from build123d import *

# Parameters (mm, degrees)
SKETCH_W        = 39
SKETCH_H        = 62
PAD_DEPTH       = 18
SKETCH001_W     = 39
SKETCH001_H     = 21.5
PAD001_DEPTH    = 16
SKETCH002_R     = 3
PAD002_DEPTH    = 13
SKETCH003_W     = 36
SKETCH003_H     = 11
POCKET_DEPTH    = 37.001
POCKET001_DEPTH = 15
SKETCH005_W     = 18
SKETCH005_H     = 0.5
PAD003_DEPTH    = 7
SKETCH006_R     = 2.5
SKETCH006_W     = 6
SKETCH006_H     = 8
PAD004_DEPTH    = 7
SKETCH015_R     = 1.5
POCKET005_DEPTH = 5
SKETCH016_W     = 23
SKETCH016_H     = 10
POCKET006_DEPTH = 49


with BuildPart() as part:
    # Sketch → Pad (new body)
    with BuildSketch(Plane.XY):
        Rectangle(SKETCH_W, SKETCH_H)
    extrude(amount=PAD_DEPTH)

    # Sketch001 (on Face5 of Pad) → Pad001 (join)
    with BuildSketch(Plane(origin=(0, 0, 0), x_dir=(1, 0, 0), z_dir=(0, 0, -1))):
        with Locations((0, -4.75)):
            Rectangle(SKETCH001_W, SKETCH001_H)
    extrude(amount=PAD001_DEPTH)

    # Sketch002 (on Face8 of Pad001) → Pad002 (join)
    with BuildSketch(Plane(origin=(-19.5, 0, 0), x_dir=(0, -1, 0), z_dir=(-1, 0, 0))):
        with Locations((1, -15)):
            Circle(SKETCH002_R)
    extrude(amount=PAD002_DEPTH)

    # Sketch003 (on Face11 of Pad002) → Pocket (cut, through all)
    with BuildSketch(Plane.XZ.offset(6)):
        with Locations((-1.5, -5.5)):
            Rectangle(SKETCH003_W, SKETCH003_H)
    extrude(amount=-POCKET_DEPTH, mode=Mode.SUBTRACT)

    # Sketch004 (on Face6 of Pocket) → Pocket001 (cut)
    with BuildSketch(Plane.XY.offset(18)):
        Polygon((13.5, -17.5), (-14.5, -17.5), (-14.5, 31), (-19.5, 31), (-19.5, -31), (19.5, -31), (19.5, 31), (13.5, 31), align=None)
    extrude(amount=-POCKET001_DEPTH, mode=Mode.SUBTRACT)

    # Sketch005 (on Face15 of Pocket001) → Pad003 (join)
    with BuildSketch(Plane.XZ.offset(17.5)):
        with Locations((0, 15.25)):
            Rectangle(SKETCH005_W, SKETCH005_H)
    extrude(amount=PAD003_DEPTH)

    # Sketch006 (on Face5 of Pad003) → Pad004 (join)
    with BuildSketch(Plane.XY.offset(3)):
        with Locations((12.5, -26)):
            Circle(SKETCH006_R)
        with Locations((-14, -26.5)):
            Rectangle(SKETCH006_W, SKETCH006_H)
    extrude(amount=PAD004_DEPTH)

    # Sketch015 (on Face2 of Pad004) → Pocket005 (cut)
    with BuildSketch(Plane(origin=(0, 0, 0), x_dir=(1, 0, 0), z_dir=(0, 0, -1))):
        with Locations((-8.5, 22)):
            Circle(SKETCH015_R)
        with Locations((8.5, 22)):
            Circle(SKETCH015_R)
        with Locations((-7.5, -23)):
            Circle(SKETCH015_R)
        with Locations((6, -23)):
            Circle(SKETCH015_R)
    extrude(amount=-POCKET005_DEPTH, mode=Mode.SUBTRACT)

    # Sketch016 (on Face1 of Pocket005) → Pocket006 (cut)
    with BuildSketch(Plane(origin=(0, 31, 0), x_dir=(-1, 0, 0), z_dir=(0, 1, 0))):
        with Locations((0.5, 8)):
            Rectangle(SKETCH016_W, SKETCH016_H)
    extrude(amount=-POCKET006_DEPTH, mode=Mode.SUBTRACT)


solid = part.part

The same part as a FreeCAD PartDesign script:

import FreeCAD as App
import Part
import Sketcher

V = App.Vector


def add_polygon(sketch, points):
    """Adds a closed chain of lines whose ends are joined by coincident constraints."""
    first, n = sketch.GeometryCount, len(points)
    for a, b in zip(points, points[1:] + points[:1]):
        sketch.addGeometry(Part.LineSegment(App.Vector(*a, 0), App.Vector(*b, 0)), False)
    for i in range(n):
        sketch.addConstraint(Sketcher.Constraint("Coincident", first + i, 2, first + (i + 1) % n, 1))

doc = App.newDocument("Part")
body = doc.addObject("PartDesign::Body", "Body")

# Sketch on XY plane
sketch1 = body.newObject("Sketcher::SketchObject", "Sketch")
sketch1.AttachmentSupport = (doc.getObject("XY_Plane"), [""])
sketch1.MapMode = "FlatFace"
add_polygon(sketch1, [(-19.5, 31), (-19.5, -31), (19.5, -31), (19.5, 31)])  # lines 0-3
sketch1.addConstraint(Sketcher.Constraint("Vertical", 0))
sketch1.addConstraint(Sketcher.Constraint("Horizontal", 1))
sketch1.addConstraint(Sketcher.Constraint("Vertical", 2))
sketch1.addConstraint(Sketcher.Constraint("Horizontal", 3))
sketch1.addConstraint(Sketcher.Constraint("Symmetric", 0, 2, 2, 2, -1, 1))
sketch1.addConstraint(Sketcher.Constraint("DistanceX", 1, 1, 1, 2, 39.0))
sketch1.addConstraint(Sketcher.Constraint("DistanceY", 0, 2, 0, 1, 62.0))
pad1 = body.newObject("PartDesign::Pad", "Pad")
pad1.Profile = sketch1
pad1.Length = 18

# Sketch on XY plane
sketch2 = body.newObject("Sketcher::SketchObject", "Sketch001")
sketch2.AttachmentSupport = (doc.getObject("XY_Plane"), [""])
sketch2.MapMode = "FlatFace"
add_polygon(sketch2, [(-19.5, -6), (-19.5, 15.5), (19.5, 15.5), (19.5, -6)])  # lines 0-3
sketch2.addConstraint(Sketcher.Constraint("Vertical", 0))
sketch2.addConstraint(Sketcher.Constraint("Horizontal", 1))
sketch2.addConstraint(Sketcher.Constraint("Vertical", 2))
sketch2.addConstraint(Sketcher.Constraint("Horizontal", 3))
sketch2.addConstraint(Sketcher.Constraint("DistanceX", 1, 1, 1, 2, 39.0))
sketch2.addConstraint(Sketcher.Constraint("DistanceY", 0, 1, 0, 2, 21.5))
sketch2.addConstraint(Sketcher.Constraint("DistanceY", 2, 2, -1, 1, 6.0))
sketch2.addConstraint(Sketcher.Constraint("DistanceX", 0, 2, -1, 1, 19.5))
pad2 = body.newObject("PartDesign::Pad", "Pad001")
pad2.Profile = sketch2
pad2.Length = 16
pad2.Reversed = True

# Sketch on YZ plane
sketch3 = body.newObject("Sketcher::SketchObject", "Sketch002")
sketch3.AttachmentSupport = (doc.getObject("YZ_Plane"), [""])
sketch3.MapMode = "FlatFace"
sketch3.AttachmentOffset = App.Placement(V(0, 0, -19.5), App.Rotation())
sketch3.addGeometry(Part.Circle(V(-1, -15, 0), V(0, 0, 1), 3), False)
sketch3.addConstraint(Sketcher.Constraint("Diameter", 0, 6.0))
sketch3.addConstraint(Sketcher.Constraint("DistanceX", 0, 3, -1, 1, 1.0))
sketch3.addConstraint(Sketcher.Constraint("DistanceY", 0, 3, -1, 1, 15.0))
pad3 = body.newObject("PartDesign::Pad", "Pad002")
pad3.Profile = sketch3
pad3.Length = 13
pad3.Reversed = True

# Sketch on XZ plane
sketch4 = body.newObject("Sketcher::SketchObject", "Sketch003")
sketch4.AttachmentSupport = (doc.getObject("XZ_Plane"), [""])
sketch4.MapMode = "FlatFace"
sketch4.AttachmentOffset = App.Placement(V(0, 0, 6), App.Rotation())
add_polygon(sketch4, [(-19.5, 0), (-19.5, -11), (16.5, -11), (16.5, 0)])  # lines 0-3
sketch4.addConstraint(Sketcher.Constraint("Vertical", 0))
sketch4.addConstraint(Sketcher.Constraint("Horizontal", 1))
sketch4.addConstraint(Sketcher.Constraint("Vertical", 2))
sketch4.addConstraint(Sketcher.Constraint("Horizontal", 3))
sketch4.addConstraint(Sketcher.Constraint("PointOnObject", 2, 2, -1))
sketch4.addConstraint(Sketcher.Constraint("DistanceX", 1, 1, 1, 2, 36.0))
sketch4.addConstraint(Sketcher.Constraint("DistanceY", 0, 2, 0, 1, 11.0))
sketch4.addConstraint(Sketcher.Constraint("DistanceX", 0, 2, -1, 1, 19.5))
pocket1 = body.newObject("PartDesign::Pocket", "Pocket")
pocket1.Profile = sketch4
pocket1.Type = "ThroughAll"

# Sketch on XY plane
sketch5 = body.newObject("Sketcher::SketchObject", "Sketch004")
sketch5.AttachmentSupport = (doc.getObject("XY_Plane"), [""])
sketch5.MapMode = "FlatFace"
sketch5.AttachmentOffset = App.Placement(V(0, 0, 18), App.Rotation())
add_polygon(sketch5, [(13.5, -17.5), (-14.5, -17.5), (-14.5, 31), (-19.5, 31), (-19.5, -31), (19.5, -31), (19.5, 31), (13.5, 31)])  # lines 0-7
sketch5.addConstraint(Sketcher.Constraint("Horizontal", 0))
sketch5.addConstraint(Sketcher.Constraint("Vertical", 1))
sketch5.addConstraint(Sketcher.Constraint("Horizontal", 2))
sketch5.addConstraint(Sketcher.Constraint("Vertical", 3))
sketch5.addConstraint(Sketcher.Constraint("Horizontal", 4))
sketch5.addConstraint(Sketcher.Constraint("Vertical", 5))
sketch5.addConstraint(Sketcher.Constraint("Horizontal", 6))
sketch5.addConstraint(Sketcher.Constraint("Vertical", 7))
sketch5.addConstraint(Sketcher.Constraint("Symmetric", 2, 2, 4, 2, -1, 1))
sketch5.addConstraint(Sketcher.Constraint("Horizontal", 2, 2, 5, 2))
sketch5.addConstraint(Sketcher.Constraint("DistanceX", 0, 2, 0, 1, 28.0))
sketch5.addConstraint(Sketcher.Constraint("DistanceX", 2, 2, 2, 1, 5.0))
sketch5.addConstraint(Sketcher.Constraint("DistanceX", 4, 1, 4, 2, 39.0))
sketch5.addConstraint(Sketcher.Constraint("DistanceY", 3, 2, 3, 1, 62.0))
sketch5.addConstraint(Sketcher.Constraint("DistanceY", 1, 1, 1, 2, 48.5))
pocket2 = body.newObject("PartDesign::Pocket", "Pocket001")
pocket2.Profile = sketch5
pocket2.Length = 15

# Sketch on XZ plane
sketch6 = body.newObject("Sketcher::SketchObject", "Sketch005")
sketch6.AttachmentSupport = (doc.getObject("XZ_Plane"), [""])
sketch6.MapMode = "FlatFace"
sketch6.AttachmentOffset = App.Placement(V(0, 0, 17.5), App.Rotation())
add_polygon(sketch6, [(-9, 15.5), (-9, 15), (9, 15), (9, 15.5)])  # lines 0-3
sketch6.addConstraint(Sketcher.Constraint("Vertical", 0))
sketch6.addConstraint(Sketcher.Constraint("Horizontal", 1))
sketch6.addConstraint(Sketcher.Constraint("Vertical", 2))
sketch6.addConstraint(Sketcher.Constraint("Horizontal", 3))
sketch6.addConstraint(Sketcher.Constraint("DistanceX", 1, 1, 1, 2, 18.0))
sketch6.addConstraint(Sketcher.Constraint("DistanceY", 0, 2, 0, 1, 0.5))
sketch6.addConstraint(Sketcher.Constraint("DistanceX", 0, 2, -1, 1, 9.0))
sketch6.addConstraint(Sketcher.Constraint("DistanceY", -1, 1, 0, 2, 15.0))
pad4 = body.newObject("PartDesign::Pad", "Pad003")
pad4.Profile = sketch6
pad4.Length = 7

# Sketch on XY plane
sketch7 = body.newObject("Sketcher::SketchObject", "Sketch006")
sketch7.AttachmentSupport = (doc.getObject("XY_Plane"), [""])
sketch7.MapMode = "FlatFace"
sketch7.AttachmentOffset = App.Placement(V(0, 0, 3), App.Rotation())
sketch7.addGeometry(Part.Circle(V(12.5, -26, 0), V(0, 0, 1), 2.5), False)  # 0
add_polygon(sketch7, [(-17, -22.5), (-17, -30.5), (-11, -30.5), (-11, -22.5)])  # lines 1-4
sketch7.addConstraint(Sketcher.Constraint("Vertical", 1))
sketch7.addConstraint(Sketcher.Constraint("Horizontal", 2))
sketch7.addConstraint(Sketcher.Constraint("Vertical", 3))
sketch7.addConstraint(Sketcher.Constraint("Horizontal", 4))
sketch7.addConstraint(Sketcher.Constraint("Diameter", 0, 5.0))
sketch7.addConstraint(Sketcher.Constraint("DistanceX", 2, 1, 2, 2, 6.0))
sketch7.addConstraint(Sketcher.Constraint("DistanceY", 1, 2, 1, 1, 8.0))
sketch7.addConstraint(Sketcher.Constraint("DistanceY", 0, 3, -1, 1, 26.0))
sketch7.addConstraint(Sketcher.Constraint("DistanceX", 1, 2, -1, 1, 17.0))
sketch7.addConstraint(Sketcher.Constraint("DistanceX", -1, 1, 0, 3, 12.5))
sketch7.addConstraint(Sketcher.Constraint("DistanceY", 1, 2, -1, 1, 30.5))
pad5 = body.newObject("PartDesign::Pad", "Pad004")
pad5.Profile = sketch7
pad5.Length = 7

# Sketch on XY plane
sketch8 = body.newObject("Sketcher::SketchObject", "Sketch007")
sketch8.AttachmentSupport = (doc.getObject("XY_Plane"), [""])
sketch8.MapMode = "FlatFace"
sketch8.addGeometry(Part.Circle(V(-8.5, -22, 0), V(0, 0, 1), 1.5), False)
sketch8.addGeometry(Part.Circle(V(8.5, -22, 0), V(0, 0, 1), 1.5), False)
sketch8.addGeometry(Part.Circle(V(-7.5, 23, 0), V(0, 0, 1), 1.5), False)
sketch8.addGeometry(Part.Circle(V(6, 23, 0), V(0, 0, 1), 1.5), False)
sketch8.addConstraint(Sketcher.Constraint("Equal", 0, 1))
sketch8.addConstraint(Sketcher.Constraint("Equal", 1, 2))
sketch8.addConstraint(Sketcher.Constraint("Equal", 2, 3))
sketch8.addConstraint(Sketcher.Constraint("Symmetric", 0, 3, 1, 3, -2))
sketch8.addConstraint(Sketcher.Constraint("Horizontal", 2, 3, 3, 3))
sketch8.addConstraint(Sketcher.Constraint("Diameter", 0, 3.0))
sketch8.addConstraint(Sketcher.Constraint("DistanceY", 0, 3, -1, 1, 22.0))
sketch8.addConstraint(Sketcher.Constraint("DistanceY", -1, 1, 2, 3, 23.0))
sketch8.addConstraint(Sketcher.Constraint("DistanceX", -1, 1, 3, 3, 6.0))
sketch8.addConstraint(Sketcher.Constraint("DistanceX", 0, 3, 1, 3, 17.0))
sketch8.addConstraint(Sketcher.Constraint("DistanceX", 0, 3, 2, 3, 1.0))
pocket3 = body.newObject("PartDesign::Pocket", "Pocket002")
pocket3.Profile = sketch8
pocket3.Length = 5
pocket3.Reversed = True

# Sketch on XZ plane
sketch9 = body.newObject("Sketcher::SketchObject", "Sketch008")
sketch9.AttachmentSupport = (doc.getObject("XZ_Plane"), [""])
sketch9.MapMode = "FlatFace"
sketch9.AttachmentOffset = App.Placement(V(0, 0, -31), App.Rotation())
add_polygon(sketch9, [(11, 13), (11, 3), (-12, 3), (-12, 13)])  # lines 0-3
sketch9.addConstraint(Sketcher.Constraint("Vertical", 0))
sketch9.addConstraint(Sketcher.Constraint("Horizontal", 1))
sketch9.addConstraint(Sketcher.Constraint("Vertical", 2))
sketch9.addConstraint(Sketcher.Constraint("Horizontal", 3))
sketch9.addConstraint(Sketcher.Constraint("DistanceX", 1, 2, 1, 1, 23.0))
sketch9.addConstraint(Sketcher.Constraint("DistanceY", 0, 2, 0, 1, 10.0))
sketch9.addConstraint(Sketcher.Constraint("DistanceX", -1, 1, 0, 2, 11.0))
sketch9.addConstraint(Sketcher.Constraint("DistanceY", -1, 1, 0, 2, 3.0))
pocket4 = body.newObject("PartDesign::Pocket", "Pocket003")
pocket4.Profile = sketch9
pocket4.Length = 49
pocket4.Reversed = True

doc.recompute()
